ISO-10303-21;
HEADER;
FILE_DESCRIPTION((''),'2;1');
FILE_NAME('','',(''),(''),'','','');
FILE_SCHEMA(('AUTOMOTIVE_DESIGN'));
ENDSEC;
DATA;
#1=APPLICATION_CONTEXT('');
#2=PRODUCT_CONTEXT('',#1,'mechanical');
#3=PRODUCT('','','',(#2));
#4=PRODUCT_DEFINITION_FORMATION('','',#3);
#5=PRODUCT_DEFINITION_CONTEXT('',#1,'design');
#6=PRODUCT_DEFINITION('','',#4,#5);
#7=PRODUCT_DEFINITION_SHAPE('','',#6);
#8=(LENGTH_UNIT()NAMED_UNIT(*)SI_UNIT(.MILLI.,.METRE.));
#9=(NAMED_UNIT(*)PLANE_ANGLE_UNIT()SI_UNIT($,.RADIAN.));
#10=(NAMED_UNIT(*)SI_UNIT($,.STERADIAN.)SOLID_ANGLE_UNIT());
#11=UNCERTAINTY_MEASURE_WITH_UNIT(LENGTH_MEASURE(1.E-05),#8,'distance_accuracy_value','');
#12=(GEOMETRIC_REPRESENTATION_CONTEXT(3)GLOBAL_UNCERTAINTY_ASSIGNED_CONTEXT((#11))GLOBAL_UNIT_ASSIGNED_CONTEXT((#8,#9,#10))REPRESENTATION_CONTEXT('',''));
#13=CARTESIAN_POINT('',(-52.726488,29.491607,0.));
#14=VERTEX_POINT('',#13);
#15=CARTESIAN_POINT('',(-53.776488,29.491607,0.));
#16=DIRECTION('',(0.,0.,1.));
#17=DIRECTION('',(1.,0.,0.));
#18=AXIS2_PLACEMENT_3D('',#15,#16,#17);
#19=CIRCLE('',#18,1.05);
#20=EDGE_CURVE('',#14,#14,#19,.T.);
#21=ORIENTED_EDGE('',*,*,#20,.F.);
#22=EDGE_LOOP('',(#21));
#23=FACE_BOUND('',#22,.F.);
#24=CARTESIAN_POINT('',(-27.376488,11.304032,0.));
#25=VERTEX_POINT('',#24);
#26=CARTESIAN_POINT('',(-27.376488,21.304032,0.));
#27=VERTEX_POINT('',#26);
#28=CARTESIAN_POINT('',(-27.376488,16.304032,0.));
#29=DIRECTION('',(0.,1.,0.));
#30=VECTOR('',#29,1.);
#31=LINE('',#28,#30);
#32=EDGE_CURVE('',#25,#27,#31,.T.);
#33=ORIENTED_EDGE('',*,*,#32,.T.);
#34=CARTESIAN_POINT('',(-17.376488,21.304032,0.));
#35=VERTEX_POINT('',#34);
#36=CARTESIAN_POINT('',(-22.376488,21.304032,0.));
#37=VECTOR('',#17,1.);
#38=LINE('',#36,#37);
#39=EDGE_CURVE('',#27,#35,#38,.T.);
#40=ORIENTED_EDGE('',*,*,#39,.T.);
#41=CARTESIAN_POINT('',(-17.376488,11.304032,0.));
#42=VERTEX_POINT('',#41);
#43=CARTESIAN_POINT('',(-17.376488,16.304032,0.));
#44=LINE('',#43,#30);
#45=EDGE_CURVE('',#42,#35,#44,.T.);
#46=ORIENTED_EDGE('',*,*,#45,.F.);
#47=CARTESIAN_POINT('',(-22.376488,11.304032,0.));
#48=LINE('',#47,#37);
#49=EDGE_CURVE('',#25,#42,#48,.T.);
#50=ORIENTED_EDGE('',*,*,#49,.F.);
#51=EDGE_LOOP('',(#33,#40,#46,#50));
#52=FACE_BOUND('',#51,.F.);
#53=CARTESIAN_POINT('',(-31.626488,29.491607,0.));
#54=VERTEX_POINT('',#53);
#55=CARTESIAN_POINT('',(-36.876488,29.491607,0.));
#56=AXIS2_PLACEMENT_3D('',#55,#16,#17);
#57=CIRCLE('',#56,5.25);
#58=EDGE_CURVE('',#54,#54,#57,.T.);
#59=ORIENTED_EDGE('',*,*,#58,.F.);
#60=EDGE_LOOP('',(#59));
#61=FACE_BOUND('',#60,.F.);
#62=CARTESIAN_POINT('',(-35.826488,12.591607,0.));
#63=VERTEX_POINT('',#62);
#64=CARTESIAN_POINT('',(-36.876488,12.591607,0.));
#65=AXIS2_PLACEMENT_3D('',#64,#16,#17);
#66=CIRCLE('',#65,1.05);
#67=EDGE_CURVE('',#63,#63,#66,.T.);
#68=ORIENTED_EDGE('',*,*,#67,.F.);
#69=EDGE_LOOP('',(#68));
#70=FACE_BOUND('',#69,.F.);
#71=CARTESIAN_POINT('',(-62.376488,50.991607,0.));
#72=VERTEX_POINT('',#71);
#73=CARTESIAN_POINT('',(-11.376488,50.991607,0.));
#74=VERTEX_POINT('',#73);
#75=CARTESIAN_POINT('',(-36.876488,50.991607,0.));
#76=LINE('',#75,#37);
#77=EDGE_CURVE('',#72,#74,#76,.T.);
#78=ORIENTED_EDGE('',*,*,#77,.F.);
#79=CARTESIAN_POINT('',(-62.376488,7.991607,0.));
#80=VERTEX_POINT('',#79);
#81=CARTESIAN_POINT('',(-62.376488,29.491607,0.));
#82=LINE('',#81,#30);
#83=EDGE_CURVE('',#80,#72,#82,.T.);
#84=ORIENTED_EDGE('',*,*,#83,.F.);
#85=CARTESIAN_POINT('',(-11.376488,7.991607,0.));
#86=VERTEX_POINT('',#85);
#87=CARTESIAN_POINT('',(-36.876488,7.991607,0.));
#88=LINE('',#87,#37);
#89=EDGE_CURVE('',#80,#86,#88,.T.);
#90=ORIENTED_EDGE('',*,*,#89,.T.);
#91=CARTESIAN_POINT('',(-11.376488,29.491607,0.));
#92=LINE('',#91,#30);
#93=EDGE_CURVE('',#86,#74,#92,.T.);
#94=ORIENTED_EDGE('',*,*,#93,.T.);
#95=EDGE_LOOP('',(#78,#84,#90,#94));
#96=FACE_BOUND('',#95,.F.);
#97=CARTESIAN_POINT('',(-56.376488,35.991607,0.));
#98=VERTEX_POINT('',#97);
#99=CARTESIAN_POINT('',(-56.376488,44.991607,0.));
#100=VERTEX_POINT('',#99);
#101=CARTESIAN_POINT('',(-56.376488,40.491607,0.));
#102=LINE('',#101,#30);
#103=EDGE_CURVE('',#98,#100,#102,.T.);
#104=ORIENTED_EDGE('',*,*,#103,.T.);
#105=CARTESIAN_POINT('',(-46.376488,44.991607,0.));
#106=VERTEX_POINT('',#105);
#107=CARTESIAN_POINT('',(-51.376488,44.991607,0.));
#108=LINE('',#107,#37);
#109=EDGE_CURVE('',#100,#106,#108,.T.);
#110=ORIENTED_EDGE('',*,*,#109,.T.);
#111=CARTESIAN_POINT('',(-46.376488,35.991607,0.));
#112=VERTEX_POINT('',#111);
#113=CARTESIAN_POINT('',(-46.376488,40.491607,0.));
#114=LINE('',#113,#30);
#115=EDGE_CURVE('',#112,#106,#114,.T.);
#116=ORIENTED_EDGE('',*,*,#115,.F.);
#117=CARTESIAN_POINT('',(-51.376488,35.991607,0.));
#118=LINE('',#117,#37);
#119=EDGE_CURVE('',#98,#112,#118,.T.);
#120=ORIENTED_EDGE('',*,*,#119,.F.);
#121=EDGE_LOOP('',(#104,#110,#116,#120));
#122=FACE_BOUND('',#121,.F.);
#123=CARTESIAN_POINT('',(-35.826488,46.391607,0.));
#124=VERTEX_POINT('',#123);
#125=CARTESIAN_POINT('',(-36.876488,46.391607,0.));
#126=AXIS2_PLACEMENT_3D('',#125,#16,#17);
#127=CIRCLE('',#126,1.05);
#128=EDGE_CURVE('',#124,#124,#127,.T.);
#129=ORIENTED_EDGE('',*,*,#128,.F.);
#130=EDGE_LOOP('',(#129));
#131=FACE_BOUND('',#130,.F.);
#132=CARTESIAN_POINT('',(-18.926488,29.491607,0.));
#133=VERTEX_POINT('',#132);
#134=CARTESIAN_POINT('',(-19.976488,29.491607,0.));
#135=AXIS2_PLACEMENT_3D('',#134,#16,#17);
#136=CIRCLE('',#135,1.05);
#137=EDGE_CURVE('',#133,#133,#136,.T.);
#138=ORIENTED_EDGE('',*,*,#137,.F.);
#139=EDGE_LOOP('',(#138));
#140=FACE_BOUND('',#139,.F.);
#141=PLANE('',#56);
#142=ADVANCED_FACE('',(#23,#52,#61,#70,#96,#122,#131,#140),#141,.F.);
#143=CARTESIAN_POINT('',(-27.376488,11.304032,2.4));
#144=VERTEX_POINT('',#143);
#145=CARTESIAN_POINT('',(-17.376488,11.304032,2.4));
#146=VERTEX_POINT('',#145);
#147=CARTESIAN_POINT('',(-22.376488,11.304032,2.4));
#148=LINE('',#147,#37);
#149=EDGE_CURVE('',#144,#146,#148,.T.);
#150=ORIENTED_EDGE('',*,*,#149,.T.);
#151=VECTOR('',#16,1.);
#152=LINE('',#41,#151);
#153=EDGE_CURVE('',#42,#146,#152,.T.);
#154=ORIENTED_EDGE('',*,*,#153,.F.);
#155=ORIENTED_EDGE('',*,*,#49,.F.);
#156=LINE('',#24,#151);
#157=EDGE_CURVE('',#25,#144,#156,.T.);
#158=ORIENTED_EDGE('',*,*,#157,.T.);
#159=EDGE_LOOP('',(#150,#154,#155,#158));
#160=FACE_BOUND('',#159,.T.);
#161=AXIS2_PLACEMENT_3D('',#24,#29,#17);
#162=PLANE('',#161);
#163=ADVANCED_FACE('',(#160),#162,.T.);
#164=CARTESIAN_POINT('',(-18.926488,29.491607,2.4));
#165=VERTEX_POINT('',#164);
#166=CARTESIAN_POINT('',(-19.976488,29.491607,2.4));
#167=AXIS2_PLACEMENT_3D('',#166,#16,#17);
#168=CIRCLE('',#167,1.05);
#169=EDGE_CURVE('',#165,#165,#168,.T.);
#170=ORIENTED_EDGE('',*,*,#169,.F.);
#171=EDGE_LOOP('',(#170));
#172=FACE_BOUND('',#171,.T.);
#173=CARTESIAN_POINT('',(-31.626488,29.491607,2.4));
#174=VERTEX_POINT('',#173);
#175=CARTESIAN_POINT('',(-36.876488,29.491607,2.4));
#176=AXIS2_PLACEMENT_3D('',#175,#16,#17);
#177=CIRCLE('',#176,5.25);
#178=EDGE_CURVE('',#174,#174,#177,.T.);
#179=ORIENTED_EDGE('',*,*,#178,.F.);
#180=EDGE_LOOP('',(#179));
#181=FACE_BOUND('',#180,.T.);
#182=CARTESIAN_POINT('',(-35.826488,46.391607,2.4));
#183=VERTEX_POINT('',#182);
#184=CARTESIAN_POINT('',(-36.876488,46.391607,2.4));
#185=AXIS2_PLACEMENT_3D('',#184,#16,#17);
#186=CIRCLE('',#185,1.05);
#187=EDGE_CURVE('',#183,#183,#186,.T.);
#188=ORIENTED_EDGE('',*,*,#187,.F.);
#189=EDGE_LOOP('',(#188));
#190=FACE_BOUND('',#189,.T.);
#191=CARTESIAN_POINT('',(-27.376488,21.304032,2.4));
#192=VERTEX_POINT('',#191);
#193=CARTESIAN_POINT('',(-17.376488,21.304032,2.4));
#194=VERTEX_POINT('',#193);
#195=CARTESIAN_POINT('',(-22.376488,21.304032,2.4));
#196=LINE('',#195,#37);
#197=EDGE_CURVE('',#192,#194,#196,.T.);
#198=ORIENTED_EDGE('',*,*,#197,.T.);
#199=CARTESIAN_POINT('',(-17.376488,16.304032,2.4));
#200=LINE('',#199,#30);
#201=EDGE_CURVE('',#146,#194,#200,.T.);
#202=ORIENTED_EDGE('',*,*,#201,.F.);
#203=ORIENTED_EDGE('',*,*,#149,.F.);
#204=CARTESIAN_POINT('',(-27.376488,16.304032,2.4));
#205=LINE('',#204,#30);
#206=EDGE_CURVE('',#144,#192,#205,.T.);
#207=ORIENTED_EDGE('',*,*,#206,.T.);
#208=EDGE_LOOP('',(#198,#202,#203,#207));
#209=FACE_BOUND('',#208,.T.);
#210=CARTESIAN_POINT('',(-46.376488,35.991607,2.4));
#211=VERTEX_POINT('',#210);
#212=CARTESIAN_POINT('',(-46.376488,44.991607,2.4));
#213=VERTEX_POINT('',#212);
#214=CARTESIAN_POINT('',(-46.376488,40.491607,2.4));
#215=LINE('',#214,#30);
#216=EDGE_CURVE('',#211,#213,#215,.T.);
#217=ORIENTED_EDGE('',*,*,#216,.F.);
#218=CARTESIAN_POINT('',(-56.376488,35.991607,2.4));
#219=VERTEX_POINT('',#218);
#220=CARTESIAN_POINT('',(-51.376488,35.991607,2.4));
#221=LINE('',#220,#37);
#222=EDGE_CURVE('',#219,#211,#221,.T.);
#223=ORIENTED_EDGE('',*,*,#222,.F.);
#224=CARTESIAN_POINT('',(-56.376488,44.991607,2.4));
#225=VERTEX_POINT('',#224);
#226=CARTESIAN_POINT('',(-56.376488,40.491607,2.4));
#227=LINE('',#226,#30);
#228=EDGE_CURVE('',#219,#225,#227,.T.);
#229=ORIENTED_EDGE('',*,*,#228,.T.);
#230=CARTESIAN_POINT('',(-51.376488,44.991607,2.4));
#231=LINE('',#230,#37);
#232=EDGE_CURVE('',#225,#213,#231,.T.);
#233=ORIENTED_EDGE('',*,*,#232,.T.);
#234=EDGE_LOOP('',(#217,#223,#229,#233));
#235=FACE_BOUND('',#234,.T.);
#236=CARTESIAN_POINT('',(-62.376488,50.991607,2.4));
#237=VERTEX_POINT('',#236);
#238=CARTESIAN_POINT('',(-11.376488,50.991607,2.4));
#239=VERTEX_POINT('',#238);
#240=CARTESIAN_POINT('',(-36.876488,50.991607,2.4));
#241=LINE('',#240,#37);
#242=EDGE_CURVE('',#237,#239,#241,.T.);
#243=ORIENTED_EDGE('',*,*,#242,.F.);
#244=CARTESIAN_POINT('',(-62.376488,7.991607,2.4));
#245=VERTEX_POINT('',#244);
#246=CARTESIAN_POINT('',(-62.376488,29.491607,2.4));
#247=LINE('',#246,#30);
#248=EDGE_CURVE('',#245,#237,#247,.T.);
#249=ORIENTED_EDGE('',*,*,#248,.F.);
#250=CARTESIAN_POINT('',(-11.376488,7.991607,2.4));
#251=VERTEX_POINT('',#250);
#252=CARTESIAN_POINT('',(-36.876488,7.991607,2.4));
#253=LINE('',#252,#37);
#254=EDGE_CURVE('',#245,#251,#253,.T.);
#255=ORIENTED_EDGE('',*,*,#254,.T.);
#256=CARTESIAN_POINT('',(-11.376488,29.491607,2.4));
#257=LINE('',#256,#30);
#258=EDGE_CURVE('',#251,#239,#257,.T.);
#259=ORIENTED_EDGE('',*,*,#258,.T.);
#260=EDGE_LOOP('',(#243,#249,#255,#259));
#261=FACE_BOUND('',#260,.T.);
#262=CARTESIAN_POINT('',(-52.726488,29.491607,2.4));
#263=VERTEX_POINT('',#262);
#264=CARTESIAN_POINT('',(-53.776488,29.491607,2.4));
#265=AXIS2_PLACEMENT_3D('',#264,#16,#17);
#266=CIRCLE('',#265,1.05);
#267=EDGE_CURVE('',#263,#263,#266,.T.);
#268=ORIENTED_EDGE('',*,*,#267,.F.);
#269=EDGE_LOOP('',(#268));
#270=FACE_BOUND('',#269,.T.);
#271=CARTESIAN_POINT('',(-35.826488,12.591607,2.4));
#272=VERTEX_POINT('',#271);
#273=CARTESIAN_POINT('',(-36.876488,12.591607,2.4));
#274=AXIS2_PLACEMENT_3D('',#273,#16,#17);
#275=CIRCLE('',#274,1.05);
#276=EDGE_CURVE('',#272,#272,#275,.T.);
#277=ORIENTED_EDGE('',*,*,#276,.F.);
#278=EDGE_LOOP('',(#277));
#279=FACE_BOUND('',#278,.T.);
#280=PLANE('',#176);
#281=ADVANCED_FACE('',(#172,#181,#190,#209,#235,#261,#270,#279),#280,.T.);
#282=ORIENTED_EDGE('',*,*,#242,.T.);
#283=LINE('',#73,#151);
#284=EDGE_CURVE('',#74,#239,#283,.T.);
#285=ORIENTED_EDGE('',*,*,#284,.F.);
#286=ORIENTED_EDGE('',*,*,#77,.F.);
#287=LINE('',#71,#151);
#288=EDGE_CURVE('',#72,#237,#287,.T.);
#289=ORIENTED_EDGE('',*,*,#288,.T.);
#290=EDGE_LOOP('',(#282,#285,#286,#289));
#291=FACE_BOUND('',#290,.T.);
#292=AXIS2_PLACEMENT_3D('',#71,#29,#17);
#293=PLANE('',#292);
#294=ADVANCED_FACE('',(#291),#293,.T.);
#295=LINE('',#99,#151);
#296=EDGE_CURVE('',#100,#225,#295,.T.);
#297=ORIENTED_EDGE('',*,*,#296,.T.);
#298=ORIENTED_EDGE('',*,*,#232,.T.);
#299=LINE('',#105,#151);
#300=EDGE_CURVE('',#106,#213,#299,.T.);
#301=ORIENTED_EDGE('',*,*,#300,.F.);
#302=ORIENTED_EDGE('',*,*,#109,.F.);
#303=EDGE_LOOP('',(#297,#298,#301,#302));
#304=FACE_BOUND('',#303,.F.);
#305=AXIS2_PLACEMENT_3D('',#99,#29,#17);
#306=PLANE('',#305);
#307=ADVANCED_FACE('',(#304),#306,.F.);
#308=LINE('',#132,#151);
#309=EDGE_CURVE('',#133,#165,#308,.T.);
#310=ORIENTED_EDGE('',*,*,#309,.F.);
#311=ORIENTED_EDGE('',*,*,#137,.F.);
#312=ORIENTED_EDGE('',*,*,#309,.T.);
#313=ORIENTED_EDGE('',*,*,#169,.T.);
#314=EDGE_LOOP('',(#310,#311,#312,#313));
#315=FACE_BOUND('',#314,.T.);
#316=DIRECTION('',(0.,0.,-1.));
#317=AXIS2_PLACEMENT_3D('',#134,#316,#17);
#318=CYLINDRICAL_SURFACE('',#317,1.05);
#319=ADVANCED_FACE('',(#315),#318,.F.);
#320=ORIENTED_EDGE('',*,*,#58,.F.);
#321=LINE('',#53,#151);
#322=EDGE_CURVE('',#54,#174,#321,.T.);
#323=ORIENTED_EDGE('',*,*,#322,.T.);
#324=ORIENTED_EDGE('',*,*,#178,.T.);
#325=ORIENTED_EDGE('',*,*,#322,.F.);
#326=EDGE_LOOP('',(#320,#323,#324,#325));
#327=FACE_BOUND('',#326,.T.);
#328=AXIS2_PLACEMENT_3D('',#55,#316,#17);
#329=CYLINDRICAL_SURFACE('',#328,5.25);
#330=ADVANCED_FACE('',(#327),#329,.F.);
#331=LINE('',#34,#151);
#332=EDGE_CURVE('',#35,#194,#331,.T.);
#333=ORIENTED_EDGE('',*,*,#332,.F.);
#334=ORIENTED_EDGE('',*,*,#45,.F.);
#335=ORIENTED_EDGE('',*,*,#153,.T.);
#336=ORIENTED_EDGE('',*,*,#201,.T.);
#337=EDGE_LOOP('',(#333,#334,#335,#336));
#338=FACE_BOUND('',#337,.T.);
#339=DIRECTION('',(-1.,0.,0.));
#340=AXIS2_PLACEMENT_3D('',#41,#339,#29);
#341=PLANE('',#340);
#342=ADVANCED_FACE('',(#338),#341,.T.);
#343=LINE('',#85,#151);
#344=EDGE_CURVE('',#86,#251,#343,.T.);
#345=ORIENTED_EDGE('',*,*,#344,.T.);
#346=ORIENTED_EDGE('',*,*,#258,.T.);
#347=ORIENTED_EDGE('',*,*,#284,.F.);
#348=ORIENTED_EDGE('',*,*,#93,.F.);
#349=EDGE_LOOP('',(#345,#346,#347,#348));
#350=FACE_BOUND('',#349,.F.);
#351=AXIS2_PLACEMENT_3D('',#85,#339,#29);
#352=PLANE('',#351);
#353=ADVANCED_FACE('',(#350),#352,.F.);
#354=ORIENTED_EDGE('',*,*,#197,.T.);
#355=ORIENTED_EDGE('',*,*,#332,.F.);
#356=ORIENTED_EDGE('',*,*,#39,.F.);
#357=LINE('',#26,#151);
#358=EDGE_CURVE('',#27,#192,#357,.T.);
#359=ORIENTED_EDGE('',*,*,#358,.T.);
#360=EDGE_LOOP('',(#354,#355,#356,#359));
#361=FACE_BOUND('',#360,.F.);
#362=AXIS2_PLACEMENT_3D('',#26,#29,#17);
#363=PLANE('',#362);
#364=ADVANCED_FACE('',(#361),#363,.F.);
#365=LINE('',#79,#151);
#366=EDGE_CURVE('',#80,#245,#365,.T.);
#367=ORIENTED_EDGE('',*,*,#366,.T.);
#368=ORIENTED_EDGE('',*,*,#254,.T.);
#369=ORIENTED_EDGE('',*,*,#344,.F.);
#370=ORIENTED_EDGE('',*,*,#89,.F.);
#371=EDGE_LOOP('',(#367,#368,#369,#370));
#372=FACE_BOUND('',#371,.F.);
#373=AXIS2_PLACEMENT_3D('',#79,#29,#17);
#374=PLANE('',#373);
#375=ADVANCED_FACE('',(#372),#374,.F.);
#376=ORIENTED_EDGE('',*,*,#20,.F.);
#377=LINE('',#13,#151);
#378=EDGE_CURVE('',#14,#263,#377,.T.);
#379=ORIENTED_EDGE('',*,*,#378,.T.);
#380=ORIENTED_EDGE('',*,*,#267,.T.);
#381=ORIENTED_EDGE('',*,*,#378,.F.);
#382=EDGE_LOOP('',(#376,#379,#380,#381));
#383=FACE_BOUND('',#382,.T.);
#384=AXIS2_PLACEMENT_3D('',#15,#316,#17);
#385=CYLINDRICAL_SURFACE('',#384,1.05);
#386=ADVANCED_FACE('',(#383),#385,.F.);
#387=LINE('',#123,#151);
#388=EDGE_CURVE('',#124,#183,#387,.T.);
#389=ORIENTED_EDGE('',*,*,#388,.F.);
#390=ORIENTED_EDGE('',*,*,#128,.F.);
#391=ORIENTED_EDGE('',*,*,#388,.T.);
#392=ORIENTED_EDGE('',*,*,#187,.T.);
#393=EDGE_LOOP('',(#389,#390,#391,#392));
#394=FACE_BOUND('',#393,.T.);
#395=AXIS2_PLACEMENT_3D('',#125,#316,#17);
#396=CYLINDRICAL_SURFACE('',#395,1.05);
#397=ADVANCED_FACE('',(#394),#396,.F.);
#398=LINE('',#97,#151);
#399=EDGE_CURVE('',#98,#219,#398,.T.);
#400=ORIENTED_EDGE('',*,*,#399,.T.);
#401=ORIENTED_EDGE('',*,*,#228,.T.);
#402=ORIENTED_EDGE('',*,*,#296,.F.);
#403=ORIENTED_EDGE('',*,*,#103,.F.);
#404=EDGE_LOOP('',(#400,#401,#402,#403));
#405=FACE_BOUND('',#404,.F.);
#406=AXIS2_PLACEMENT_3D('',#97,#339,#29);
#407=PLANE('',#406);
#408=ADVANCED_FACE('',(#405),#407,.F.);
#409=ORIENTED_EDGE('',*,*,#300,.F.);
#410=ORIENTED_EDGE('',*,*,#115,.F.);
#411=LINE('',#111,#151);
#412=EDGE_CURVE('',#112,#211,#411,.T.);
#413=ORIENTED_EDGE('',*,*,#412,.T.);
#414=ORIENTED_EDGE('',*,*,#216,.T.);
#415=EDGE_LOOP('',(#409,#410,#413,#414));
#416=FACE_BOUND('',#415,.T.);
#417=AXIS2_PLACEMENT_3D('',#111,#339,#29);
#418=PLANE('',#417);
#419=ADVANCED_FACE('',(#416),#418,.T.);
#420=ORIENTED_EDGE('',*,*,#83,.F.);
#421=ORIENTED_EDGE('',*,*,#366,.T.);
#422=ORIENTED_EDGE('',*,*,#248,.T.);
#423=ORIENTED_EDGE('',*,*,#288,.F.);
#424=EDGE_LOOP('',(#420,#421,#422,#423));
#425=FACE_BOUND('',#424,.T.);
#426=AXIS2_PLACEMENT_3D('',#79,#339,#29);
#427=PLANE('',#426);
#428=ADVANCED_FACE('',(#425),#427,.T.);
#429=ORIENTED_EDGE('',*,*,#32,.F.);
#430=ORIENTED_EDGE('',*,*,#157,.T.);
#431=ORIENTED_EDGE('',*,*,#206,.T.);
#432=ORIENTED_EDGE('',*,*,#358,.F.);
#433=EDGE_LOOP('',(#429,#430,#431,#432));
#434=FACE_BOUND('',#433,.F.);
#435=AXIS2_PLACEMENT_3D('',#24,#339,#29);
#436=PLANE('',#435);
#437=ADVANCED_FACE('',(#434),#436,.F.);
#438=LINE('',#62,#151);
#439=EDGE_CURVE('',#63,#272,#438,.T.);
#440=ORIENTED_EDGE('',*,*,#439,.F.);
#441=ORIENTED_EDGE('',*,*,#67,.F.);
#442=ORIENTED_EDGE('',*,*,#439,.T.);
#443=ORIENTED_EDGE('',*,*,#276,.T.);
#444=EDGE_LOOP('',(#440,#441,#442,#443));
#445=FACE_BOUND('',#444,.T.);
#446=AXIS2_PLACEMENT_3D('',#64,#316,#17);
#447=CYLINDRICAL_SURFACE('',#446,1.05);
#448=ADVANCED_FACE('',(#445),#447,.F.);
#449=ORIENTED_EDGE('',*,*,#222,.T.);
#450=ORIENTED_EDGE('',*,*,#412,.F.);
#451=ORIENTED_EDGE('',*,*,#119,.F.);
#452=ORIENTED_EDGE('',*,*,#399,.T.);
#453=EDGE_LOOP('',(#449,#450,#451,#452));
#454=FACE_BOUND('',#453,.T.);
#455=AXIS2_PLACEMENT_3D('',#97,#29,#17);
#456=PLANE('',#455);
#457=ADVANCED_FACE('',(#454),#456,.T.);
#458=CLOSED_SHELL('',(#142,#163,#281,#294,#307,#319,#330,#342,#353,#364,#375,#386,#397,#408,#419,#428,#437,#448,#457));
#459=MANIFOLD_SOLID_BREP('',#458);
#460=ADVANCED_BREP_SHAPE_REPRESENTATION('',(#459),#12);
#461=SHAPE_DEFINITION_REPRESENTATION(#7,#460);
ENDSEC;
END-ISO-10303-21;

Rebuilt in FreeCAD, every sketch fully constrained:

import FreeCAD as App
import Part
import Sketcher
from FreeCAD import Vector

doc = App.newDocument("Part")
body = doc.addObject("PartDesign::Body", "Body")

# Sketch on XY plane
sketch1 = body.newObject("Sketcher::SketchObject", "Sketch")
sketch1.AttachmentSupport = (doc.getObject("XY_Plane"), [""])
sketch1.MapMode = "FlatFace"
sketch1.addGeometry([
    Part.LineSegment(Vector(-62.4, 51, 0), Vector(-62.4, 8, 0)),  # 0
    Part.LineSegment(Vector(-62.4, 8, 0), Vector(-11.4, 8, 0)),  # 1
    Part.LineSegment(Vector(-11.4, 8, 0), Vector(-11.4, 51, 0)),  # 2
    Part.LineSegment(Vector(-11.4, 51, 0), Vector(-62.4, 51, 0)),  # 3
    Part.Circle(Vector(-36.9, 12.6, 0), Vector(0, 0, 1), 1.1),  # 4
    Part.LineSegment(Vector(-17.4, 11.3, 0), Vector(-27.4, 11.3, 0)),  # 5
    Part.LineSegment(Vector(-27.4, 11.3, 0), Vector(-27.4, 21.3, 0)),  # 6
    Part.LineSegment(Vector(-27.4, 21.3, 0), Vector(-17.4, 21.3, 0)),  # 7
    Part.LineSegment(Vector(-17.4, 21.3, 0), Vector(-17.4, 11.3, 0)),  # 8
    Part.Circle(Vector(-53.8, 29.5, 0), Vector(0, 0, 1), 1.1),  # 9
    Part.LineSegment(Vector(-46.4, 36, 0), Vector(-56.4, 36, 0)),  # 10
    Part.LineSegment(Vector(-56.4, 36, 0), Vector(-56.4, 45, 0)),  # 11
    Part.LineSegment(Vector(-56.4, 45, 0), Vector(-46.4, 45, 0)),  # 12
    Part.LineSegment(Vector(-46.4, 45, 0), Vector(-46.4, 36, 0)),  # 13
    Part.Circle(Vector(-36.9, 29.5, 0), Vector(0, 0, 1), 5.2),  # 14
    Part.Circle(Vector(-20, 29.5, 0), Vector(0, 0, 1), 1.1),  # 15
    Part.Circle(Vector(-36.9, 46.4, 0), Vector(0, 0, 1), 1.1),  # 16
], False)
sketch1.addConstraint([
    Sketcher.Constraint("Coincident", 0, 2, 1, 1),
    Sketcher.Constraint("Coincident", 1, 2, 2, 1),
    Sketcher.Constraint("Coincident", 2, 2, 3, 1),
    Sketcher.Constraint("Coincident", 3, 2, 0, 1),
    Sketcher.Constraint("Coincident", 5, 2, 6, 1),
    Sketcher.Constraint("Coincident", 6, 2, 7, 1),
    Sketcher.Constraint("Coincident", 7, 2, 8, 1),
    Sketcher.Constraint("Coincident", 8, 2, 5, 1),
    Sketcher.Constraint("Coincident", 10, 2, 11, 1),
    Sketcher.Constraint("Coincident", 11, 2, 12, 1),
    Sketcher.Constraint("Coincident", 12, 2, 13, 1),
    Sketcher.Constraint("Coincident", 13, 2, 10, 1),
    Sketcher.Constraint("Vertical", 0),
    Sketcher.Constraint("Horizontal", 1),
    Sketcher.Constraint("Vertical", 2),
    Sketcher.Constraint("Horizontal", 3),
    Sketcher.Constraint("Horizontal", 5),
    Sketcher.Constraint("Vertical", 6),
    Sketcher.Constraint("Horizontal", 7),
    Sketcher.Constraint("Vertical", 8),
    Sketcher.Constraint("Horizontal", 10),
    Sketcher.Constraint("Vertical", 11),
    Sketcher.Constraint("Horizontal", 12),
    Sketcher.Constraint("Vertical", 13),
    Sketcher.Constraint("Equal", 4, 9),
    Sketcher.Constraint("Equal", 9, 15),
    Sketcher.Constraint("Equal", 15, 16),
    Sketcher.Constraint("Horizontal", 9, 3, 14, 3),
    Sketcher.Constraint("Horizontal", 14, 3, 15, 3),
    Sketcher.Constraint("Vertical", 4, 3, 14, 3),
    Sketcher.Constraint("Vertical", 14, 3, 16, 3),
    Sketcher.Constraint("Equal", 7, 10),
    Sketcher.Constraint("Equal", 12, 6),
    Sketcher.Constraint("Diameter", 4, 2.1),
    Sketcher.Constraint("Diameter", 14, 10.5),
    Sketcher.Constraint("DistanceX", 1, 1, 1, 2, 51.0),
    Sketcher.Constraint("DistanceX", 5, 2, 5, 1, 10.0),
    Sketcher.Constraint("DistanceY", 0, 2, 0, 1, 43.0),
    Sketcher.Constraint("DistanceY", 11, 1, 11, 2, 9.0),
    Sketcher.Constraint("DistanceX", 5, 2, 1, 2, 16.0),
    Sketcher.Constraint("DistanceX", 3, 2, 10, 2, 6.0),
    Sketcher.Constraint("DistanceY", 10, 2, 3, 2, 15.0),
    Sketcher.Constraint("DistanceX", 9, 3, 4, 3, 16.9),
    Sketcher.Constraint("DistanceY", 4, 3, 9, 3, 16.9),
    Sketcher.Constraint("DistanceX", 14, 3, 15, 3, 16.9),
    Sketcher.Constraint("DistanceY", 14, 3, 16, 3, 16.9),
    Sketcher.Constraint("DistanceX", 0, 2, 9, 3, 8.6),
    Sketcher.Constraint("DistanceY", 0, 2, 9, 3, 21.5),
    Sketcher.Constraint("DistanceX", 4, 3, -1, 1, 36.876488),
    Sketcher.Constraint("DistanceY", -1, 1, 6, 2, 21.304032),
    Sketcher.Constraint("DistanceY", -1, 1, 4, 3, 12.591607),
])
pad1 = body.newObject("PartDesign::Pad", "Pad")
pad1.Profile = sketch1
pad1.Length = 2.4

doc.recompute()
